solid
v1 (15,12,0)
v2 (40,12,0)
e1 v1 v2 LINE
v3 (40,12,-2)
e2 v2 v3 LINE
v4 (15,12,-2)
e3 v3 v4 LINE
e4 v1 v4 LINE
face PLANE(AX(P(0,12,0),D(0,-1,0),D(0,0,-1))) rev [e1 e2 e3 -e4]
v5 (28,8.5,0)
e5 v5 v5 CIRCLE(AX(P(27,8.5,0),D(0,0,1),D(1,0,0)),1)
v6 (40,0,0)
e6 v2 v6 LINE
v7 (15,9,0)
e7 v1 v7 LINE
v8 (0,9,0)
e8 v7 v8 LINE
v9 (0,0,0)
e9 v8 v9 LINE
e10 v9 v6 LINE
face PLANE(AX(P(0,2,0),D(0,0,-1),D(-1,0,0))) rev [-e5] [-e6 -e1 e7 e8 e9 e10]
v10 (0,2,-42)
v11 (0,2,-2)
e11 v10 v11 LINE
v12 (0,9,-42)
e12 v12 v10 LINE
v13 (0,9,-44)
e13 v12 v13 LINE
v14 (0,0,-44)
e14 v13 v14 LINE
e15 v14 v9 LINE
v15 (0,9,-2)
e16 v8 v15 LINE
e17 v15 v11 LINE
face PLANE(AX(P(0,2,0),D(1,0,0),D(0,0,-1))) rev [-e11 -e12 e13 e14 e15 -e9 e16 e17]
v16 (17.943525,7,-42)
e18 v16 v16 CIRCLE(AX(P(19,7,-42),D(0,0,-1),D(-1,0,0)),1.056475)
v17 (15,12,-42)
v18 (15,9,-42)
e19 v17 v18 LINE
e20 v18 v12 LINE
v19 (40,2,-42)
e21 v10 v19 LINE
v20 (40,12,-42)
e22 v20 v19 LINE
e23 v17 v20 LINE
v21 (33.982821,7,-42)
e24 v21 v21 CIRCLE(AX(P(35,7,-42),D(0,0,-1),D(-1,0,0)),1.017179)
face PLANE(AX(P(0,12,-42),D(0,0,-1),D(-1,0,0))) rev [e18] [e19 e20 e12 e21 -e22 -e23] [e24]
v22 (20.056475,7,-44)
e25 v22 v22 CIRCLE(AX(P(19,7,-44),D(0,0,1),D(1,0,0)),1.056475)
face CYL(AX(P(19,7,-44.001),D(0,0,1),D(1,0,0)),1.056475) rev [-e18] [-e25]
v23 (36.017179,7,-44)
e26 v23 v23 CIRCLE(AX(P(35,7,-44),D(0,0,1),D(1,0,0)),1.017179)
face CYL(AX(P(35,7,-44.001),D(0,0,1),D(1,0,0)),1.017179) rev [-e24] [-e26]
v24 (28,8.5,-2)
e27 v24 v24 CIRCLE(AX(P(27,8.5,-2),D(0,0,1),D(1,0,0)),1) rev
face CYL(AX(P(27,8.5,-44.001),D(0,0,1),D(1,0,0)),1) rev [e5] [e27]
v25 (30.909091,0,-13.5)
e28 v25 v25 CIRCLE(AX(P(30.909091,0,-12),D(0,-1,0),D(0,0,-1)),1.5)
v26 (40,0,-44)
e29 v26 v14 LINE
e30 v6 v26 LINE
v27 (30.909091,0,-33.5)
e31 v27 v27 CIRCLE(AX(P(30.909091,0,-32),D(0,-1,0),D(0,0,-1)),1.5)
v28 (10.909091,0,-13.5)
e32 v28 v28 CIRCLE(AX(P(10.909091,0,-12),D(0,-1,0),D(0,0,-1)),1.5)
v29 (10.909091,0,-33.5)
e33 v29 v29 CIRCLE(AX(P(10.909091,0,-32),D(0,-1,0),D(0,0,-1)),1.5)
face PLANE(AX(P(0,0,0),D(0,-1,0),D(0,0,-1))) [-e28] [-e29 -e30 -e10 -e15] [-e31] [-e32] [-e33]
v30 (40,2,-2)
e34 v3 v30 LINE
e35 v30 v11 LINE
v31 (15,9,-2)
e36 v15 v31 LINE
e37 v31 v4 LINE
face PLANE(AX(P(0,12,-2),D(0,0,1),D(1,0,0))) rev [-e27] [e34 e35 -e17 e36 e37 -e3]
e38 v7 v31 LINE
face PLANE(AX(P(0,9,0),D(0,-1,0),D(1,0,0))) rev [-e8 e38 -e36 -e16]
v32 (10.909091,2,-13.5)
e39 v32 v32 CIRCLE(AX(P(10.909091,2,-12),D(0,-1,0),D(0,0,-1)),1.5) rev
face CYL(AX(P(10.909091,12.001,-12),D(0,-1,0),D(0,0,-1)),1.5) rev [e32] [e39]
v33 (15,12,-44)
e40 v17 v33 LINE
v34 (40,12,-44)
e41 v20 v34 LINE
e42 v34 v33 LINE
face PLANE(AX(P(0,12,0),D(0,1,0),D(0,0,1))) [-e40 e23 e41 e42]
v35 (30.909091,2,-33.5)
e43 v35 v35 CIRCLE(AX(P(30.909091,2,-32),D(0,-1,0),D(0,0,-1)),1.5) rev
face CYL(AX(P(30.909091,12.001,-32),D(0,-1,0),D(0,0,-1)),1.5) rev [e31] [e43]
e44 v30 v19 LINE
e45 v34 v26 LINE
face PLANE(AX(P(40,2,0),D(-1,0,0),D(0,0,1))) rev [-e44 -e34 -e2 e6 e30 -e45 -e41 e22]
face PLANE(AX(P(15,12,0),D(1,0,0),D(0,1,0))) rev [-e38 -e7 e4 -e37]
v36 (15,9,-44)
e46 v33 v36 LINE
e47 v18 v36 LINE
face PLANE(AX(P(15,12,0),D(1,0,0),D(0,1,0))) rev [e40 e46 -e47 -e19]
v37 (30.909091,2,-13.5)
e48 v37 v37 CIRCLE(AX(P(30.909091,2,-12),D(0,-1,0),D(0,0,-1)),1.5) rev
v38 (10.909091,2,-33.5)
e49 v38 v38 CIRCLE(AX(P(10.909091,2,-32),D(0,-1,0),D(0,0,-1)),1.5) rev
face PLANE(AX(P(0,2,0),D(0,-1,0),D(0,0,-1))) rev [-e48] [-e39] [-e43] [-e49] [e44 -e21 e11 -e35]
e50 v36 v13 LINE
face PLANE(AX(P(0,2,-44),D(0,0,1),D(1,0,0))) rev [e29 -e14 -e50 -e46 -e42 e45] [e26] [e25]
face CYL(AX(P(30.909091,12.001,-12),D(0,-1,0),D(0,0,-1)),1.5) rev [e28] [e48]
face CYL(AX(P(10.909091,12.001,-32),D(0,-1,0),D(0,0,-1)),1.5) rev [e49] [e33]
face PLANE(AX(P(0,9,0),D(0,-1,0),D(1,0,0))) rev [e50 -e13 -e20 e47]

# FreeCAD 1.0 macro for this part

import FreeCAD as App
import Part
import Sketcher
from FreeCAD import Vector
Q = App.Units.Quantity


def add_polygon(sketch, points):
    """Adds a closed chain of lines whose ends are joined by coincident constraints."""
    first, n = sketch.GeometryCount, len(points)
    for a, b in zip(points, points[1:] + points[:1]):
        sketch.addGeometry(Part.LineSegment(App.Vector(*a, 0), App.Vector(*b, 0)), False)
    for i in range(n):
        sketch.addConstraint(Sketcher.Constraint("Coincident", first + i, 2, first + (i + 1) % n, 1))

doc = App.newDocument("Part")
body = doc.addObject("PartDesign::Body", "Body")

sketch1 = body.newObject("Sketcher::SketchObject", "Sketch")
sketch1.AttachmentSupport = (doc.getObject("XZ_Plane"), [""])
sketch1.MapMode = "FlatFace"
add_polygon(sketch1, [(0, -44), (0, 0), (40, 0), (40, -44)])
sketch1.addConstraint([
    Sketcher.Constraint("Vertical", 0),
    Sketcher.Constraint("Horizontal", 1),
    Sketcher.Constraint("Vertical", 2),
    Sketcher.Constraint("Horizontal", 3),
    Sketcher.Constraint("Coincident", 0, 2, -1, 1),
    Sketcher.Constraint("DistanceX", 1, 1, 1, 2, Q("40 mm")),
    Sketcher.Constraint("DistanceY", 0, 1, 0, 2, Q("44 mm")),
])
pad1 = body.newObject("PartDesign::Pad", "Pad")
pad1.Profile = sketch1
pad1.Length = 2
pad1.Reversed = True

sketch2 = body.newObject("Sketcher::SketchObject", "Sketch001")
sketch2.AttachmentSupport = (doc.getObject("XZ_Plane"), [""])
sketch2.MapMode = "FlatFace"
sketch2.AttachmentOffset = App.Placement(Vector(0, 0, -2), App.Rotation())
add_polygon(sketch2, [(0, -44), (0, -42), (40, -42), (40, -44)])
add_polygon(sketch2, [(0, -2), (0, 0), (40, 0), (40, -2)])
sketch2.addConstraint([
    Sketcher.Constraint("Vertical", 0),
    Sketcher.Constraint("Horizontal", 1),
    Sketcher.Constraint("Vertical", 2),
    Sketcher.Constraint("Horizontal", 3),
    Sketcher.Constraint("Vertical", 4),
    Sketcher.Constraint("Horizontal", 5),
    Sketcher.Constraint("Vertical", 6),
    Sketcher.Constraint("Horizontal", 7),
    Sketcher.Constraint("Coincident", 4, 2, -1, 1),
    Sketcher.Constraint("PointOnObject", 0, 2, -2),
    Sketcher.Constraint("Vertical", 2, 2, 5, 2),
    Sketcher.Constraint("Equal", 2, 4),
    Sketcher.Constraint("DistanceX", 1, 1, 1, 2, Q("40 mm")),
    Sketcher.Constraint("DistanceY", 0, 1, 0, 2, Q("2 mm")),
    Sketcher.Constraint("DistanceY", 0, 2, -1, 1, Q("42 mm")),
])
pad2 = body.newObject("PartDesign::Pad", "Pad001")
pad2.Profile = sketch2
pad2.Length = 10
pad2.Reversed = True

sketch3 = body.newObject("Sketcher::SketchObject", "Sketch002")
sketch3.AttachmentSupport = (doc.getObject("XY_Plane"), [""])
sketch3.MapMode = "FlatFace"
sketch3.AttachmentOffset = App.Placement(Vector(0, 0, -44), App.Rotation())
add_polygon(sketch3, [(15, 12), (15, 9), (0, 9), (0, 12)])
sketch3.addConstraint([
    Sketcher.Constraint("Vertical", 0),
    Sketcher.Constraint("Horizontal", 1),
    Sketcher.Constraint("Vertical", 2),
    Sketcher.Constraint("Horizontal", 3),
    Sketcher.Constraint("PointOnObject", 1, 2, -2),
    Sketcher.Constraint("DistanceX", 1, 2, 1, 1, Q("15 mm")),
    Sketcher.Constraint("DistanceY", 0, 2, 0, 1, Q("3 mm")),
    Sketcher.Constraint("DistanceY", -1, 1, 0, 2, Q("9 mm")),
])
pocket1 = body.newObject("PartDesign::Pocket", "Pocket")
pocket1.Profile = sketch3
pocket1.Type = "ThroughAll"
pocket1.Reversed = True

sketch4 = body.newObject("Sketcher::SketchObject", "Sketch003")
sketch4.AttachmentSupport = (doc.getObject("XY_Plane"), [""])
sketch4.MapMode = "FlatFace"
sketch4.AttachmentOffset = App.Placement(Vector(0, 0, -42), App.Rotation())
sketch4.addGeometry(Part.Circle(Vector(35, 7, 0), Vector(0, 0, 1), 1.017179), False)
sketch4.addConstraint([
    Sketcher.Constraint("DistanceX", -1, 1, 0, 3, Q("35 mm")),
    Sketcher.Constraint("DistanceY", -1, 1, 0, 3, Q("7 mm")),
    Sketcher.Constraint("Diameter", 0, Q("2.034357 mm")),
])
pocket2 = body.newObject("PartDesign::Pocket", "Pocket001")
pocket2.Profile = sketch4
pocket2.Type = "UpToFirst"

sketch5 = body.newObject("Sketcher::SketchObject", "Sketch004")
sketch5.AttachmentSupport = (doc.getObject("XY_Plane"), [""])
sketch5.MapMode = "FlatFace"
sketch5.AttachmentOffset = App.Placement(Vector(0, 0, -42), App.Rotation())
sketch5.addGeometry(Part.Circle(Vector(19, 7, 0), Vector(0, 0, 1), 1.056475), False)
sketch5.addConstraint([
    Sketcher.Constraint("DistanceX", -1, 1, 0, 3, Q("19 mm")),
    Sketcher.Constraint("DistanceY", -1, 1, 0, 3, Q("7 mm")),
    Sketcher.Constraint("Diameter", 0, Q("2.112951 mm")),
])
pocket3 = body.newObject("PartDesign::Pocket", "Pocket002")
pocket3.Profile = sketch5
pocket3.Type = "UpToFirst"

sketch6 = body.newObject("Sketcher::SketchObject", "Sketch005")
sketch6.AttachmentSupport = (doc.getObject("XY_Plane"), [""])
sketch6.MapMode = "FlatFace"
sketch6.addGeometry(Part.Circle(Vector(27, 8.5, 0), Vector(0, 0, 1), 1), False)
sketch6.addConstraint([
    Sketcher.Constraint("Diameter", 0, Q("2 mm")),
    Sketcher.Constraint("DistanceX", -1, 1, 0, 3, Q("27 mm")),
    Sketcher.Constraint("DistanceY", -1, 1, 0, 3, Q("8.5 mm")),
])
pocket4 = body.newObject("PartDesign::Pocket", "Pocket003")
pocket4.Profile = sketch6
pocket4.Type = "UpToFirst"

sketch7 = body.newObject("Sketcher::SketchObject", "Sketch006")
sketch7.AttachmentSupport = (doc.getObject("XZ_Plane"), [""])
sketch7.MapMode = "FlatFace"
sketch7.addGeometry(Part.Circle(Vector(10.909091, -32, 0), Vector(0, 0, 1), 1.5), False)
sketch7.addConstraint([
    Sketcher.Constraint("Diameter", 0, Q("3 mm")),
    Sketcher.Constraint("DistanceY", 0, 3, -1, 1, Q("32 mm")),
    Sketcher.Constraint("DistanceX", -1, 1, 0, 3, Q("10.909091 mm")),
])
pocket5 = body.newObject("PartDesign::Pocket", "Pocket004")
pocket5.Profile = sketch7
pocket5.Type = "UpToFirst"

sketch8 = body.newObject("Sketcher::SketchObject", "Sketch007")
sketch8.AttachmentSupport = (doc.getObject("XZ_Plane"), [""])
sketch8.MapMode = "FlatFace"
sketch8.addGeometry(Part.Circle(Vector(10.909091, -12, 0), Vector(0, 0, 1), 1.5), False)
sketch8.addConstraint([
    Sketcher.Constraint("Diameter", 0, Q("3 mm")),
    Sketcher.Constraint("DistanceY", 0, 3, -1, 1, Q("12 mm")),
    Sketcher.Constraint("DistanceX", -1, 1, 0, 3, Q("10.909091 mm")),
])
pocket6 = body.newObject("PartDesign::Pocket", "Pocket005")
pocket6.Profile = sketch8
pocket6.Type = "UpToFirst"

sketch9 = body.newObject("Sketcher::SketchObject", "Sketch008")
sketch9.AttachmentSupport = (doc.getObject("XZ_Plane"), [""])
sketch9.MapMode = "FlatFace"
sketch9.addGeometry(Part.Circle(Vector(30.909091, -12, 0), Vector(0, 0, 1), 1.5), False)
sketch9.addConstraint([
    Sketcher.Constraint("Diameter", 0, Q("3 mm")),
    Sketcher.Constraint("DistanceY", 0, 3, -1, 1, Q("12 mm")),
    Sketcher.Constraint("DistanceX", -1, 1, 0, 3, Q("30.909091 mm")),
])
pocket7 = body.newObject("PartDesign::Pocket", "Pocket006")
pocket7.Profile = sketch9
pocket7.Type = "UpToFirst"

sketch10 = body.newObject("Sketcher::SketchObject", "Sketch009")
sketch10.AttachmentSupport = (doc.getObject("XZ_Plane"), [""])
sketch10.MapMode = "FlatFace"
sketch10.addGeometry(Part.Circle(Vector(30.909091, -32, 0), Vector(0, 0, 1), 1.5), False)
sketch10.addConstraint([
    Sketcher.Constraint("Diameter", 0, Q("3 mm")),
    Sketcher.Constraint("DistanceY", 0, 3, -1, 1, Q("32 mm")),
    Sketcher.Constraint("DistanceX", -1, 1, 0, 3, Q("30.909091 mm")),
])
pocket8 = body.newObject("PartDesign::Pocket", "Pocket007")
pocket8.Profile = sketch10
pocket8.Type = "UpToFirst"

doc.recompute()
